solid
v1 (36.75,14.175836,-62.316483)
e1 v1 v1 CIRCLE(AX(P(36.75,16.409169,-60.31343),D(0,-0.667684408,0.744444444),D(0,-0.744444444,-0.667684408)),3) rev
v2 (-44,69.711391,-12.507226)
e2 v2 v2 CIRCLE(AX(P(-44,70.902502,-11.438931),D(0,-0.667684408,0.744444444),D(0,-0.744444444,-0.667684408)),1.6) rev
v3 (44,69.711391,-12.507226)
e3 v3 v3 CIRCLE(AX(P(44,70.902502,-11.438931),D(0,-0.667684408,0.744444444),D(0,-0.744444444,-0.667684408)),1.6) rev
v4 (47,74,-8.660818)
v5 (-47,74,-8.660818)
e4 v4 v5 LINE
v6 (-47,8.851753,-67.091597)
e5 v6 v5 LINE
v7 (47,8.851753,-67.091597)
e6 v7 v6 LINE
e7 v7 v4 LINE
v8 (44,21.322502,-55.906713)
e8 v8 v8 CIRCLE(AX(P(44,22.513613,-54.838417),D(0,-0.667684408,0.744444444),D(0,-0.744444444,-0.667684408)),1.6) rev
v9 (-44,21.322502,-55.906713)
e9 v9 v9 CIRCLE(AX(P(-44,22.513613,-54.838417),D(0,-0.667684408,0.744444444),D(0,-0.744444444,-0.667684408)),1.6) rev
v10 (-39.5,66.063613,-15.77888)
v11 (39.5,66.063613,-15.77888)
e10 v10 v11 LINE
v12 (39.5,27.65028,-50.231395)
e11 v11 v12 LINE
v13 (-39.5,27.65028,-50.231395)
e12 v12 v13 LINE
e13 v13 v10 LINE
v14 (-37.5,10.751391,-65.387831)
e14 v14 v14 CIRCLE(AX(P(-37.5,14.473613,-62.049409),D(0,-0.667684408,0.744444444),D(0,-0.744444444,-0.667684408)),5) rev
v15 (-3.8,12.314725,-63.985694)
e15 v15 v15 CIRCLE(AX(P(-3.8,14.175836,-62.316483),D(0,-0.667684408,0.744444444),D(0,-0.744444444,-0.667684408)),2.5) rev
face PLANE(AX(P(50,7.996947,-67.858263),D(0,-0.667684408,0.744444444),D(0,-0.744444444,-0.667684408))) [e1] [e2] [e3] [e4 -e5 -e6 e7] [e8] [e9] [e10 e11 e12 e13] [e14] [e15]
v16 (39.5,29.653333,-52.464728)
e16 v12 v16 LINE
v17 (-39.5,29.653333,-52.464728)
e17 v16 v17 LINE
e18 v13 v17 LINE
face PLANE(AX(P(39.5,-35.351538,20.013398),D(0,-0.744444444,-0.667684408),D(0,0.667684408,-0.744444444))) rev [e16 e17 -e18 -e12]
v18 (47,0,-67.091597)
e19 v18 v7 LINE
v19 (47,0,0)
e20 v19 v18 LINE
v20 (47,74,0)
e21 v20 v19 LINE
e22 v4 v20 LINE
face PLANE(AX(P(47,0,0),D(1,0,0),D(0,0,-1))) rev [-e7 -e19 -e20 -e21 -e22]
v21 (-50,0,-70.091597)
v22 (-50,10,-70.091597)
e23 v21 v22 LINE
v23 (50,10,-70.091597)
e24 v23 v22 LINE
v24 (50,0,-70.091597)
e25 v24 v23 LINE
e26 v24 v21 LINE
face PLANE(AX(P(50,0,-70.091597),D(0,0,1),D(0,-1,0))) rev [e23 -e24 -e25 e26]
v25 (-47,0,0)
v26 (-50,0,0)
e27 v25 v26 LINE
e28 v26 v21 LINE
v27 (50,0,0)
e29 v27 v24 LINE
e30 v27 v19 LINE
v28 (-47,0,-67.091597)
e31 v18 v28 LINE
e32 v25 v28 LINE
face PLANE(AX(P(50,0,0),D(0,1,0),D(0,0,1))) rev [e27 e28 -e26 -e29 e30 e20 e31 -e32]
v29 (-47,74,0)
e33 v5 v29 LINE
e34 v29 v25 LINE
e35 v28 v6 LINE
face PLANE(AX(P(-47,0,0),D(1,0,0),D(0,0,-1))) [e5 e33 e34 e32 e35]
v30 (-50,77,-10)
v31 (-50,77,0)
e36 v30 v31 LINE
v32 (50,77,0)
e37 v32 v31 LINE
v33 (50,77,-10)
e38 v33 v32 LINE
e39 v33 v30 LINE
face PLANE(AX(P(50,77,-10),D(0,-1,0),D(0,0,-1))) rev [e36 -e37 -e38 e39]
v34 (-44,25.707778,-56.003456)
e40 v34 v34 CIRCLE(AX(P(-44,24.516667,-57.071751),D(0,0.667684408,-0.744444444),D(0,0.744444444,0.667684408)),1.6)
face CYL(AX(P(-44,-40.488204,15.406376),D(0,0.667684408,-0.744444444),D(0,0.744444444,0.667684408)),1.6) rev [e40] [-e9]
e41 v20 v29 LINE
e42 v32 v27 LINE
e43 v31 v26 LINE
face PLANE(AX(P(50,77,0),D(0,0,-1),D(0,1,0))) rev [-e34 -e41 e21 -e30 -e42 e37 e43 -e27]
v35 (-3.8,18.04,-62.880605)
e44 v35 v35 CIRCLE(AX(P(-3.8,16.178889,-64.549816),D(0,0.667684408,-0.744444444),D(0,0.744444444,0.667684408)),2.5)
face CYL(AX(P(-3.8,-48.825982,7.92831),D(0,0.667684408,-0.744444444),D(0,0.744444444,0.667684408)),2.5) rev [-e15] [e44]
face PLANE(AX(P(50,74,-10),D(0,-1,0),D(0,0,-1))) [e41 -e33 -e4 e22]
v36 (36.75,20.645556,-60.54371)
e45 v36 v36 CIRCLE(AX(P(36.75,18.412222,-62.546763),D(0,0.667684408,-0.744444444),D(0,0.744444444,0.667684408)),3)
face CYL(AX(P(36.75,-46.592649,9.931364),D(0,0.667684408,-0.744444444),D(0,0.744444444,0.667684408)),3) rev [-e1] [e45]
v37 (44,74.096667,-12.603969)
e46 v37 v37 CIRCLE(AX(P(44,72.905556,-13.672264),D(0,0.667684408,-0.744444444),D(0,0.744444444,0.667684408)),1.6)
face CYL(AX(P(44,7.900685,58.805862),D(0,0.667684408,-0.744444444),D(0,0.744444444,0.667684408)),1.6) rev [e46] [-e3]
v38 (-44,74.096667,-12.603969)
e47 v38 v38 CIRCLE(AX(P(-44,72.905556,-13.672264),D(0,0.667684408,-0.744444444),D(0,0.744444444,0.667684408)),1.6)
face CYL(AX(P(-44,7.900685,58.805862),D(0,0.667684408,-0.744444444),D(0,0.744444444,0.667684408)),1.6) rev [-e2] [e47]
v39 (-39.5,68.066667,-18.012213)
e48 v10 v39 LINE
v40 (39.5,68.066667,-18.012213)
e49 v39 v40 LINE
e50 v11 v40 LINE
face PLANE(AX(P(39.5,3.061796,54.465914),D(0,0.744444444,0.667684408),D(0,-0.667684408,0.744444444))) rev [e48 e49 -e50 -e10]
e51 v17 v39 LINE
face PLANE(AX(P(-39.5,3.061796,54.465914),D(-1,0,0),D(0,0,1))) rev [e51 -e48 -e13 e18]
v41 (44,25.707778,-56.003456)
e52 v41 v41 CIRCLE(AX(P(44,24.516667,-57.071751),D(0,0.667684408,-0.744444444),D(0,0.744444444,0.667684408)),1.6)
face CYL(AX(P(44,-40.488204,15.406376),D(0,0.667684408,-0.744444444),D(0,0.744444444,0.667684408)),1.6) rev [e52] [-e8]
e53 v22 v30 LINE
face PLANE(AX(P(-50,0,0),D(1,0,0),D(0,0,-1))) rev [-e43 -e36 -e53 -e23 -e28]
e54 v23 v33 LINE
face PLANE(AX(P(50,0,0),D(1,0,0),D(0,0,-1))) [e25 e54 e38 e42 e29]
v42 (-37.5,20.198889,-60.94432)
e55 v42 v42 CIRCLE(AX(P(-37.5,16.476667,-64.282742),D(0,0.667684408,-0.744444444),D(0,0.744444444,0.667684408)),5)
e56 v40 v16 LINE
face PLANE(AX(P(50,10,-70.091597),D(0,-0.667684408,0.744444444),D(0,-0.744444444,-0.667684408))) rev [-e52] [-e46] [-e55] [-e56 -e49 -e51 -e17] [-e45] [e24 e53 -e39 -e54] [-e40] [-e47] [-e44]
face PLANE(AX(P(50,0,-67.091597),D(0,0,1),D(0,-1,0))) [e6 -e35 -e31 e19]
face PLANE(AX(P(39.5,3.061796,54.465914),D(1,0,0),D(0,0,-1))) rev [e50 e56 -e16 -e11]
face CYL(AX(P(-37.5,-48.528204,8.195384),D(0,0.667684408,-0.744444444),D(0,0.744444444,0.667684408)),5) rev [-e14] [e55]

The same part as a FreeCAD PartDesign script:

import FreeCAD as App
import Part
import Sketcher
from FreeCAD import Vector


def faces_at(feature, points):
    """Names of the faces that lie closest to the given points."""
    faces = feature.Shape.Faces
    near = lambda p: min(range(len(faces)), key=lambda i: faces[i].distToShape(Part.Vertex(*p))[0])
    return sorted({f"Face{near(p) + 1}" for p in points})


def add_polygon(sketch, points):
    """Adds a closed chain of lines whose ends are joined by coincident constraints."""
    first, n = sketch.GeometryCount, len(points)
    for a, b in zip(points, points[1:] + points[:1]):
        sketch.addGeometry(Part.LineSegment(App.Vector(*a, 0), App.Vector(*b, 0)), False)
    for i in range(n):
        sketch.addConstraint(Sketcher.Constraint("Coincident", first + i, 2, first + (i + 1) % n, 1))

doc = App.newDocument("Part")
params = doc.addObject("Spreadsheet::Sheet", "Params")
for row, (alias, value) in enumerate([
    ("sketch1_width", "10 mm"),
    ("sketch1_width2", "77 mm"),
    ("sketch1_length", "90 mm"),
    ("pad1_length", "100 mm"),
    ("thickness_wall", "3 mm"),
    ("sketch2_diameter", "10 mm"),
    ("sketch2_diameter2", "6 mm"),
    ("sketch2_diameter3", "5 mm"),
    ("sketch2_diameter4", "3.2 mm"),
    ("sketch2_width", "79 mm"),
    ("pocket1_length", "3 mm"),
], start=1):
    params.set(f"A{row}", alias)
    params.set(f"B{row}", "=" + value)
    params.setAlias(f"B{row}", alias)

body = doc.addObject("PartDesign::Body", "Body")

sketch1 = body.newObject("Sketcher::SketchObject", "Sketch")
sketch1.AttachmentSupport = (doc.getObject("YZ_Plane"), [""])
sketch1.MapMode = "FlatFace"
add_polygon(sketch1, [(0, 0), (0, -70.091597), (10, -70.091597), (77, -10), (77, 0)])
sketch1.addConstraint(Sketcher.Constraint("Vertical", 0))
sketch1.addConstraint(Sketcher.Constraint("Horizontal", 1))
sketch1.addConstraint(Sketcher.Constraint("Vertical", 3))
sketch1.addConstraint(Sketcher.Constraint("Horizontal", 4))
sketch1.addConstraint(Sketcher.Constraint("Coincident", 4, 2, -1, 1))
sketch1.addConstraint(Sketcher.Constraint("Equal", 1, 3))
sketch1.addConstraint(Sketcher.Constraint("DistanceX", 1, 1, 1, 2, 10.0))
sketch1.addConstraint(Sketcher.Constraint("DistanceX", 4, 2, 4, 1, 77.0))
sketch1.addConstraint(Sketcher.Constraint("Distance", 2, 90.0))
sketch1.setExpression("Constraints[11]", "Params.sketch1_width")
sketch1.setExpression("Constraints[12]", "Params.sketch1_width2")
sketch1.setExpression("Constraints[13]", "Params.sketch1_length")
pad1 = body.newObject("PartDesign::Pad", "Pad")
pad1.Profile = sketch1
pad1.setExpression("Length", "Params.pad1_length")
pad1.Midplane = True
doc.recompute()

thickness = body.newObject("PartDesign::Thickness", "Thickness")
thickness.Base = (pad1, faces_at(pad1, [(0, 0, -35.046), (0, 38.5, 0)]))
thickness.setExpression("Value", "Params.thickness_wall")
thickness.Reversed = True
thickness.Join = "Intersection"

sketch2 = body.newObject("Sketcher::SketchObject", "Sketch001")
sketch2.Placement = App.Placement(Vector(0, 39.29733, -43.815129), App.Rotation(Vector(1, 0, 0), Vector(0, -0.744444444, -0.667684408), Vector(0, 0.667684408, -0.744444444), "ZXY"))
sketch2.addGeometry(Part.Circle(Vector(-44, 19.854622, 0), Vector(0, 0, 1), 1.6), False)
sketch2.addGeometry(Part.Circle(Vector(-44, -45.145378, 0), Vector(0, 0, 1), 1.6), False)
sketch2.addGeometry(Part.Circle(Vector(44, -45.145378, 0), Vector(0, 0, 1), 1.6), False)
sketch2.addGeometry(Part.Circle(Vector(44, 19.854622, 0), Vector(0, 0, 1), 1.6), False)
sketch2.addGeometry(Part.Circle(Vector(-37.5, 30.654622, 0), Vector(0, 0, 1), 5), False)
sketch2.addGeometry(Part.Circle(Vector(36.75, 28.054622, 0), Vector(0, 0, 1), 3), False)
sketch2.addGeometry(Part.Circle(Vector(-3.8, 31.054622, 0), Vector(0, 0, 1), 2.5), False)
add_polygon(sketch2, [(-39.5, 12.954622), (-39.5, -38.645378), (39.5, -38.645378), (39.5, 12.954622)])
sketch2.addConstraint(Sketcher.Constraint("Vertical", 7))
sketch2.addConstraint(Sketcher.Constraint("Horizontal", 8))
sketch2.addConstraint(Sketcher.Constraint("Vertical", 9))
sketch2.addConstraint(Sketcher.Constraint("Horizontal", 10))
sketch2.addConstraint(Sketcher.Constraint("Equal", 0, 1))
sketch2.addConstraint(Sketcher.Constraint("Equal", 1, 2))
sketch2.addConstraint(Sketcher.Constraint("Equal", 2, 3))
sketch2.addConstraint(Sketcher.Constraint("Symmetric", 1, 3, 2, 3, -2))
sketch2.addConstraint(Sketcher.Constraint("Symmetric", 0, 3, 3, 3, -2))
sketch2.addConstraint(Sketcher.Constraint("Vertical", 0, 3, 1, 3))
sketch2.addConstraint(Sketcher.Constraint("Diameter", 4, 10.0))
sketch2.addConstraint(Sketcher.Constraint("Diameter", 5, 6.0))
sketch2.addConstraint(Sketcher.Constraint("Diameter", 6, 5.0))
sketch2.addConstraint(Sketcher.Constraint("Diameter", 0, 3.2))
sketch2.addConstraint(Sketcher.Constraint("DistanceX", 8, 1, 8, 2, 79.0))
sketch2.addConstraint(Sketcher.Constraint("DistanceY", 7, 2, 7, 1, 51.6))
sketch2.addConstraint(Sketcher.Constraint("DistanceX", 0, 3, -1, 1, 44.0))
sketch2.addConstraint(Sketcher.Constraint("DistanceY", 1, 3, 0, 3, 65.0))
sketch2.addConstraint(Sketcher.Constraint("DistanceY", 5, 3, 6, 3, 3.0))
sketch2.addConstraint(Sketcher.Constraint("DistanceX", 7, 2, 4, 3, 2.0))
sketch2.addConstraint(Sketcher.Constraint("DistanceX", 4, 3, -1, 1, 37.5))
sketch2.addConstraint(Sketcher.Constraint("DistanceX", 6, 3, -1, 1, 3.8))
sketch2.addConstraint(Sketcher.Constraint("DistanceY", 0, 3, 4, 3, 10.8))
sketch2.addConstraint(Sketcher.Constraint("DistanceY", 3, 3, 5, 3, 8.2))
sketch2.addConstraint(Sketcher.Constraint("DistanceY", 1, 3, 7, 2, 6.5))
sketch2.addConstraint(Sketcher.Constraint("DistanceX", -1, 1, 5, 3, 36.75))
sketch2.addConstraint(Sketcher.Constraint("DistanceY", -1, 1, 0, 3, 19.854622))
sketch2.setExpression("Constraints[14]", "Params.sketch2_diameter")
sketch2.setExpression("Constraints[15]", "Params.sketch2_diameter2")
sketch2.setExpression("Constraints[16]", "Params.sketch2_diameter3")
sketch2.setExpression("Constraints[17]", "Params.sketch2_diameter4")
sketch2.setExpression("Constraints[18]", "Params.sketch2_width")
pocket1 = body.newObject("PartDesign::Pocket", "Pocket")
pocket1.Profile = sketch2
pocket1.setExpression("Length", "Params.pocket1_length")

doc.recompute()
